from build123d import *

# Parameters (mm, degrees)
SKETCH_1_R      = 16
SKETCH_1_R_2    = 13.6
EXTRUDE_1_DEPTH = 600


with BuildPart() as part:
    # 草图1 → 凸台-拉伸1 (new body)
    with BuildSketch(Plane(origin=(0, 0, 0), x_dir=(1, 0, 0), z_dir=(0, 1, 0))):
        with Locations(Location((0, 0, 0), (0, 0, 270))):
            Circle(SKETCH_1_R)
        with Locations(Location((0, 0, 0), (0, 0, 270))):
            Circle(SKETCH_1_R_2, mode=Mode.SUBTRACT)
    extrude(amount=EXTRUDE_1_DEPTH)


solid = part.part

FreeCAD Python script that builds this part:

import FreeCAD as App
import Part
import Sketcher
Q = App.Units.Quantity

doc = App.newDocument("Part")
body = doc.addObject("PartDesign::Body", "Body")

sketch1 = doc.addObject("Sketcher::SketchObject", "Sketch")
body.addObject(sketch1)
sketch1.AttachmentSupport = (doc.XZ_Plane, [""])
sketch1.MapMode = "FlatFace"
sketch1.addGeometry([
    Part.Circle(App.Vector(0, 0, 0), App.Vector(0, 0, 1), 16),
    Part.Circle(App.Vector(0, 0, 0), App.Vector(0, 0, 1), 14),
], False)
sketch1.addConstraint([
    Sketcher.Constraint("Coincident", 0, 3, -1, 1),
    Sketcher.Constraint("Coincident", 1, 3, -1, 1),
    Sketcher.Constraint("Diameter", 0, Q("32 mm")),
    Sketcher.Constraint("Diameter", 1, Q("27.2 mm")),
])
pad1 = doc.addObject("PartDesign::Pad", "Pad")
body.addObject(pad1)
pad1.Profile = sketch1
pad1.Length = 600
pad1.Reversed = True

doc.recompute()
